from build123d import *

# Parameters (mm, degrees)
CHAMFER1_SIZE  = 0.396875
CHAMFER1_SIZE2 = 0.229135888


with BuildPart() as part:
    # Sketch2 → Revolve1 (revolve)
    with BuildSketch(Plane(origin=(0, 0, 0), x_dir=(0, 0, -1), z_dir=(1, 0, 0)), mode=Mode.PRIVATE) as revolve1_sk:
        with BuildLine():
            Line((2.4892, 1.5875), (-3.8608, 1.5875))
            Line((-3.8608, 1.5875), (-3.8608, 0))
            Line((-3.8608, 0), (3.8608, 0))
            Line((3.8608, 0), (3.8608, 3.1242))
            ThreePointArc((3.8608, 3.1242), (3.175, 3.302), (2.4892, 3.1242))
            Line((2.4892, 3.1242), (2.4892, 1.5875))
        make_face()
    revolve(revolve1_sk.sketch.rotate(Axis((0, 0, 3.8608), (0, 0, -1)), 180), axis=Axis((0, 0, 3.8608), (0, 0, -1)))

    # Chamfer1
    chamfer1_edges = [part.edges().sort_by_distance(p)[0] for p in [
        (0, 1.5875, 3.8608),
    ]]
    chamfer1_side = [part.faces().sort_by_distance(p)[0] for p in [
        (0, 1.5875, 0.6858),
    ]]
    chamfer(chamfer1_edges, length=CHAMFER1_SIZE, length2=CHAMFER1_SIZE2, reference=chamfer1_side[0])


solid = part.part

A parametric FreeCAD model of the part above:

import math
import FreeCAD as App
import Part
import Sketcher

V = App.Vector
Q = App.Units.Quantity


def edges_at(feature, points):
    """Names of the edges that pass closest to the given points."""
    edges = feature.Shape.Edges
    near = lambda p: min(range(len(edges)), key=lambda i: edges[i].distToShape(Part.Vertex(*p))[0])
    return sorted({f"Edge{near(p) + 1}" for p in points})

doc = App.newDocument("Part")
params = doc.addObject("Spreadsheet::Sheet", "Params")
for row, (alias, value) in enumerate([
    ("sketch1_height", "0.25 in"),
    ("sketch1_width", "0.0625 in"),
    ("sketch1_width2", "0.123 in"),
    ("sketch1_height2", "0.304 in"),
    ("revolution_angle", "360 deg"),
    ("chamfer_size", "0.015625 in"),
    ("chamfer_size2", "0.229136 mm"),
], start=1):
    params.set(f"A{row}", alias)
    params.set(f"B{row}", "=" + value)
    params.setAlias(f"B{row}", alias)

body = doc.addObject("PartDesign::Body", "Body")

# Sketch on YZ plane
sketch1 = body.newObject("Sketcher::SketchObject", "Sketch")
sketch1.AttachmentSupport = (doc.getObject("YZ_Plane"), [""])
sketch1.MapMode = "FlatFace"
sketch1.addGeometry([
    Part.LineSegment(V(1.5875, -2.4892, 0), V(1.5875, 3.8608, 0)),  # 0
    Part.LineSegment(V(1.5875, 3.8608, 0), V(0, 3.8608, 0)),  # 1
    Part.LineSegment(V(0, 3.8608, 0), V(0, -3.8608, 0)),  # 2
    Part.LineSegment(V(0, -3.8608, 0), V(3.1242, -3.8608, 0)),  # 3
    Part.ArcOfCircle(Part.Circle(V(1.890486, -3.175, 0), V(0, 0, 1), 1.411514), math.radians(-29.06891), math.radians(29.06891)),  # 4
    Part.LineSegment(V(3.1242, -2.4892, 0), V(1.5875, -2.4892, 0)),  # 5
], False)
sketch1.addConstraint([
    Sketcher.Constraint("Coincident", 0, 2, 1, 1),
    Sketcher.Constraint("Coincident", 1, 2, 2, 1),
    Sketcher.Constraint("Coincident", 2, 2, 3, 1),
    Sketcher.Constraint("Coincident", 3, 2, 4, 1),
    Sketcher.Constraint("Coincident", 4, 2, 5, 1),
    Sketcher.Constraint("Coincident", 5, 2, 0, 1),
    Sketcher.Constraint("Vertical", 0),
    Sketcher.Constraint("Horizontal", 1),
    Sketcher.Constraint("Vertical", 2),
    Sketcher.Constraint("Horizontal", 3),
    Sketcher.Constraint("Horizontal", 5),
    Sketcher.Constraint("Symmetric", 1, 2, 2, 2, -1, 1),
    Sketcher.Constraint("Vertical", 3, 2, 4, 2),
    Sketcher.Constraint("DistanceY", 0, 1, 0, 2, Q("0.25 in")),
    Sketcher.Constraint("DistanceX", 1, 2, 1, 1, Q("0.0625 in")),
    Sketcher.Constraint("DistanceX", 3, 1, 3, 2, Q("0.123 in")),
    Sketcher.Constraint("DistanceY", 2, 2, 2, 1, Q("0.304 in")),
    Sketcher.Constraint("Radius", 4, 1.411514),
])
sketch1.setExpression("Constraints[13]", "Params.sketch1_height")
sketch1.setExpression("Constraints[14]", "Params.sketch1_width")
sketch1.setExpression("Constraints[15]", "Params.sketch1_width2")
sketch1.setExpression("Constraints[16]", "Params.sketch1_height2")
revolution = body.newObject("PartDesign::Revolution", "Revolution")
revolution.Profile = sketch1
revolution.ReferenceAxis = (sketch1, ["V_Axis"])
revolution.setExpression("Angle", "Params.revolution_angle")
doc.recompute()

chamfer = body.newObject("PartDesign::Chamfer", "Chamfer")
chamfer.Base = (revolution, edges_at(revolution, [(0, 1.587, 3.861)]))
chamfer.ChamferType = "Two distances"
chamfer.setExpression("Size", "Params.chamfer_size")
chamfer.setExpression("Size2", "Params.chamfer_size2")

doc.recompute()
